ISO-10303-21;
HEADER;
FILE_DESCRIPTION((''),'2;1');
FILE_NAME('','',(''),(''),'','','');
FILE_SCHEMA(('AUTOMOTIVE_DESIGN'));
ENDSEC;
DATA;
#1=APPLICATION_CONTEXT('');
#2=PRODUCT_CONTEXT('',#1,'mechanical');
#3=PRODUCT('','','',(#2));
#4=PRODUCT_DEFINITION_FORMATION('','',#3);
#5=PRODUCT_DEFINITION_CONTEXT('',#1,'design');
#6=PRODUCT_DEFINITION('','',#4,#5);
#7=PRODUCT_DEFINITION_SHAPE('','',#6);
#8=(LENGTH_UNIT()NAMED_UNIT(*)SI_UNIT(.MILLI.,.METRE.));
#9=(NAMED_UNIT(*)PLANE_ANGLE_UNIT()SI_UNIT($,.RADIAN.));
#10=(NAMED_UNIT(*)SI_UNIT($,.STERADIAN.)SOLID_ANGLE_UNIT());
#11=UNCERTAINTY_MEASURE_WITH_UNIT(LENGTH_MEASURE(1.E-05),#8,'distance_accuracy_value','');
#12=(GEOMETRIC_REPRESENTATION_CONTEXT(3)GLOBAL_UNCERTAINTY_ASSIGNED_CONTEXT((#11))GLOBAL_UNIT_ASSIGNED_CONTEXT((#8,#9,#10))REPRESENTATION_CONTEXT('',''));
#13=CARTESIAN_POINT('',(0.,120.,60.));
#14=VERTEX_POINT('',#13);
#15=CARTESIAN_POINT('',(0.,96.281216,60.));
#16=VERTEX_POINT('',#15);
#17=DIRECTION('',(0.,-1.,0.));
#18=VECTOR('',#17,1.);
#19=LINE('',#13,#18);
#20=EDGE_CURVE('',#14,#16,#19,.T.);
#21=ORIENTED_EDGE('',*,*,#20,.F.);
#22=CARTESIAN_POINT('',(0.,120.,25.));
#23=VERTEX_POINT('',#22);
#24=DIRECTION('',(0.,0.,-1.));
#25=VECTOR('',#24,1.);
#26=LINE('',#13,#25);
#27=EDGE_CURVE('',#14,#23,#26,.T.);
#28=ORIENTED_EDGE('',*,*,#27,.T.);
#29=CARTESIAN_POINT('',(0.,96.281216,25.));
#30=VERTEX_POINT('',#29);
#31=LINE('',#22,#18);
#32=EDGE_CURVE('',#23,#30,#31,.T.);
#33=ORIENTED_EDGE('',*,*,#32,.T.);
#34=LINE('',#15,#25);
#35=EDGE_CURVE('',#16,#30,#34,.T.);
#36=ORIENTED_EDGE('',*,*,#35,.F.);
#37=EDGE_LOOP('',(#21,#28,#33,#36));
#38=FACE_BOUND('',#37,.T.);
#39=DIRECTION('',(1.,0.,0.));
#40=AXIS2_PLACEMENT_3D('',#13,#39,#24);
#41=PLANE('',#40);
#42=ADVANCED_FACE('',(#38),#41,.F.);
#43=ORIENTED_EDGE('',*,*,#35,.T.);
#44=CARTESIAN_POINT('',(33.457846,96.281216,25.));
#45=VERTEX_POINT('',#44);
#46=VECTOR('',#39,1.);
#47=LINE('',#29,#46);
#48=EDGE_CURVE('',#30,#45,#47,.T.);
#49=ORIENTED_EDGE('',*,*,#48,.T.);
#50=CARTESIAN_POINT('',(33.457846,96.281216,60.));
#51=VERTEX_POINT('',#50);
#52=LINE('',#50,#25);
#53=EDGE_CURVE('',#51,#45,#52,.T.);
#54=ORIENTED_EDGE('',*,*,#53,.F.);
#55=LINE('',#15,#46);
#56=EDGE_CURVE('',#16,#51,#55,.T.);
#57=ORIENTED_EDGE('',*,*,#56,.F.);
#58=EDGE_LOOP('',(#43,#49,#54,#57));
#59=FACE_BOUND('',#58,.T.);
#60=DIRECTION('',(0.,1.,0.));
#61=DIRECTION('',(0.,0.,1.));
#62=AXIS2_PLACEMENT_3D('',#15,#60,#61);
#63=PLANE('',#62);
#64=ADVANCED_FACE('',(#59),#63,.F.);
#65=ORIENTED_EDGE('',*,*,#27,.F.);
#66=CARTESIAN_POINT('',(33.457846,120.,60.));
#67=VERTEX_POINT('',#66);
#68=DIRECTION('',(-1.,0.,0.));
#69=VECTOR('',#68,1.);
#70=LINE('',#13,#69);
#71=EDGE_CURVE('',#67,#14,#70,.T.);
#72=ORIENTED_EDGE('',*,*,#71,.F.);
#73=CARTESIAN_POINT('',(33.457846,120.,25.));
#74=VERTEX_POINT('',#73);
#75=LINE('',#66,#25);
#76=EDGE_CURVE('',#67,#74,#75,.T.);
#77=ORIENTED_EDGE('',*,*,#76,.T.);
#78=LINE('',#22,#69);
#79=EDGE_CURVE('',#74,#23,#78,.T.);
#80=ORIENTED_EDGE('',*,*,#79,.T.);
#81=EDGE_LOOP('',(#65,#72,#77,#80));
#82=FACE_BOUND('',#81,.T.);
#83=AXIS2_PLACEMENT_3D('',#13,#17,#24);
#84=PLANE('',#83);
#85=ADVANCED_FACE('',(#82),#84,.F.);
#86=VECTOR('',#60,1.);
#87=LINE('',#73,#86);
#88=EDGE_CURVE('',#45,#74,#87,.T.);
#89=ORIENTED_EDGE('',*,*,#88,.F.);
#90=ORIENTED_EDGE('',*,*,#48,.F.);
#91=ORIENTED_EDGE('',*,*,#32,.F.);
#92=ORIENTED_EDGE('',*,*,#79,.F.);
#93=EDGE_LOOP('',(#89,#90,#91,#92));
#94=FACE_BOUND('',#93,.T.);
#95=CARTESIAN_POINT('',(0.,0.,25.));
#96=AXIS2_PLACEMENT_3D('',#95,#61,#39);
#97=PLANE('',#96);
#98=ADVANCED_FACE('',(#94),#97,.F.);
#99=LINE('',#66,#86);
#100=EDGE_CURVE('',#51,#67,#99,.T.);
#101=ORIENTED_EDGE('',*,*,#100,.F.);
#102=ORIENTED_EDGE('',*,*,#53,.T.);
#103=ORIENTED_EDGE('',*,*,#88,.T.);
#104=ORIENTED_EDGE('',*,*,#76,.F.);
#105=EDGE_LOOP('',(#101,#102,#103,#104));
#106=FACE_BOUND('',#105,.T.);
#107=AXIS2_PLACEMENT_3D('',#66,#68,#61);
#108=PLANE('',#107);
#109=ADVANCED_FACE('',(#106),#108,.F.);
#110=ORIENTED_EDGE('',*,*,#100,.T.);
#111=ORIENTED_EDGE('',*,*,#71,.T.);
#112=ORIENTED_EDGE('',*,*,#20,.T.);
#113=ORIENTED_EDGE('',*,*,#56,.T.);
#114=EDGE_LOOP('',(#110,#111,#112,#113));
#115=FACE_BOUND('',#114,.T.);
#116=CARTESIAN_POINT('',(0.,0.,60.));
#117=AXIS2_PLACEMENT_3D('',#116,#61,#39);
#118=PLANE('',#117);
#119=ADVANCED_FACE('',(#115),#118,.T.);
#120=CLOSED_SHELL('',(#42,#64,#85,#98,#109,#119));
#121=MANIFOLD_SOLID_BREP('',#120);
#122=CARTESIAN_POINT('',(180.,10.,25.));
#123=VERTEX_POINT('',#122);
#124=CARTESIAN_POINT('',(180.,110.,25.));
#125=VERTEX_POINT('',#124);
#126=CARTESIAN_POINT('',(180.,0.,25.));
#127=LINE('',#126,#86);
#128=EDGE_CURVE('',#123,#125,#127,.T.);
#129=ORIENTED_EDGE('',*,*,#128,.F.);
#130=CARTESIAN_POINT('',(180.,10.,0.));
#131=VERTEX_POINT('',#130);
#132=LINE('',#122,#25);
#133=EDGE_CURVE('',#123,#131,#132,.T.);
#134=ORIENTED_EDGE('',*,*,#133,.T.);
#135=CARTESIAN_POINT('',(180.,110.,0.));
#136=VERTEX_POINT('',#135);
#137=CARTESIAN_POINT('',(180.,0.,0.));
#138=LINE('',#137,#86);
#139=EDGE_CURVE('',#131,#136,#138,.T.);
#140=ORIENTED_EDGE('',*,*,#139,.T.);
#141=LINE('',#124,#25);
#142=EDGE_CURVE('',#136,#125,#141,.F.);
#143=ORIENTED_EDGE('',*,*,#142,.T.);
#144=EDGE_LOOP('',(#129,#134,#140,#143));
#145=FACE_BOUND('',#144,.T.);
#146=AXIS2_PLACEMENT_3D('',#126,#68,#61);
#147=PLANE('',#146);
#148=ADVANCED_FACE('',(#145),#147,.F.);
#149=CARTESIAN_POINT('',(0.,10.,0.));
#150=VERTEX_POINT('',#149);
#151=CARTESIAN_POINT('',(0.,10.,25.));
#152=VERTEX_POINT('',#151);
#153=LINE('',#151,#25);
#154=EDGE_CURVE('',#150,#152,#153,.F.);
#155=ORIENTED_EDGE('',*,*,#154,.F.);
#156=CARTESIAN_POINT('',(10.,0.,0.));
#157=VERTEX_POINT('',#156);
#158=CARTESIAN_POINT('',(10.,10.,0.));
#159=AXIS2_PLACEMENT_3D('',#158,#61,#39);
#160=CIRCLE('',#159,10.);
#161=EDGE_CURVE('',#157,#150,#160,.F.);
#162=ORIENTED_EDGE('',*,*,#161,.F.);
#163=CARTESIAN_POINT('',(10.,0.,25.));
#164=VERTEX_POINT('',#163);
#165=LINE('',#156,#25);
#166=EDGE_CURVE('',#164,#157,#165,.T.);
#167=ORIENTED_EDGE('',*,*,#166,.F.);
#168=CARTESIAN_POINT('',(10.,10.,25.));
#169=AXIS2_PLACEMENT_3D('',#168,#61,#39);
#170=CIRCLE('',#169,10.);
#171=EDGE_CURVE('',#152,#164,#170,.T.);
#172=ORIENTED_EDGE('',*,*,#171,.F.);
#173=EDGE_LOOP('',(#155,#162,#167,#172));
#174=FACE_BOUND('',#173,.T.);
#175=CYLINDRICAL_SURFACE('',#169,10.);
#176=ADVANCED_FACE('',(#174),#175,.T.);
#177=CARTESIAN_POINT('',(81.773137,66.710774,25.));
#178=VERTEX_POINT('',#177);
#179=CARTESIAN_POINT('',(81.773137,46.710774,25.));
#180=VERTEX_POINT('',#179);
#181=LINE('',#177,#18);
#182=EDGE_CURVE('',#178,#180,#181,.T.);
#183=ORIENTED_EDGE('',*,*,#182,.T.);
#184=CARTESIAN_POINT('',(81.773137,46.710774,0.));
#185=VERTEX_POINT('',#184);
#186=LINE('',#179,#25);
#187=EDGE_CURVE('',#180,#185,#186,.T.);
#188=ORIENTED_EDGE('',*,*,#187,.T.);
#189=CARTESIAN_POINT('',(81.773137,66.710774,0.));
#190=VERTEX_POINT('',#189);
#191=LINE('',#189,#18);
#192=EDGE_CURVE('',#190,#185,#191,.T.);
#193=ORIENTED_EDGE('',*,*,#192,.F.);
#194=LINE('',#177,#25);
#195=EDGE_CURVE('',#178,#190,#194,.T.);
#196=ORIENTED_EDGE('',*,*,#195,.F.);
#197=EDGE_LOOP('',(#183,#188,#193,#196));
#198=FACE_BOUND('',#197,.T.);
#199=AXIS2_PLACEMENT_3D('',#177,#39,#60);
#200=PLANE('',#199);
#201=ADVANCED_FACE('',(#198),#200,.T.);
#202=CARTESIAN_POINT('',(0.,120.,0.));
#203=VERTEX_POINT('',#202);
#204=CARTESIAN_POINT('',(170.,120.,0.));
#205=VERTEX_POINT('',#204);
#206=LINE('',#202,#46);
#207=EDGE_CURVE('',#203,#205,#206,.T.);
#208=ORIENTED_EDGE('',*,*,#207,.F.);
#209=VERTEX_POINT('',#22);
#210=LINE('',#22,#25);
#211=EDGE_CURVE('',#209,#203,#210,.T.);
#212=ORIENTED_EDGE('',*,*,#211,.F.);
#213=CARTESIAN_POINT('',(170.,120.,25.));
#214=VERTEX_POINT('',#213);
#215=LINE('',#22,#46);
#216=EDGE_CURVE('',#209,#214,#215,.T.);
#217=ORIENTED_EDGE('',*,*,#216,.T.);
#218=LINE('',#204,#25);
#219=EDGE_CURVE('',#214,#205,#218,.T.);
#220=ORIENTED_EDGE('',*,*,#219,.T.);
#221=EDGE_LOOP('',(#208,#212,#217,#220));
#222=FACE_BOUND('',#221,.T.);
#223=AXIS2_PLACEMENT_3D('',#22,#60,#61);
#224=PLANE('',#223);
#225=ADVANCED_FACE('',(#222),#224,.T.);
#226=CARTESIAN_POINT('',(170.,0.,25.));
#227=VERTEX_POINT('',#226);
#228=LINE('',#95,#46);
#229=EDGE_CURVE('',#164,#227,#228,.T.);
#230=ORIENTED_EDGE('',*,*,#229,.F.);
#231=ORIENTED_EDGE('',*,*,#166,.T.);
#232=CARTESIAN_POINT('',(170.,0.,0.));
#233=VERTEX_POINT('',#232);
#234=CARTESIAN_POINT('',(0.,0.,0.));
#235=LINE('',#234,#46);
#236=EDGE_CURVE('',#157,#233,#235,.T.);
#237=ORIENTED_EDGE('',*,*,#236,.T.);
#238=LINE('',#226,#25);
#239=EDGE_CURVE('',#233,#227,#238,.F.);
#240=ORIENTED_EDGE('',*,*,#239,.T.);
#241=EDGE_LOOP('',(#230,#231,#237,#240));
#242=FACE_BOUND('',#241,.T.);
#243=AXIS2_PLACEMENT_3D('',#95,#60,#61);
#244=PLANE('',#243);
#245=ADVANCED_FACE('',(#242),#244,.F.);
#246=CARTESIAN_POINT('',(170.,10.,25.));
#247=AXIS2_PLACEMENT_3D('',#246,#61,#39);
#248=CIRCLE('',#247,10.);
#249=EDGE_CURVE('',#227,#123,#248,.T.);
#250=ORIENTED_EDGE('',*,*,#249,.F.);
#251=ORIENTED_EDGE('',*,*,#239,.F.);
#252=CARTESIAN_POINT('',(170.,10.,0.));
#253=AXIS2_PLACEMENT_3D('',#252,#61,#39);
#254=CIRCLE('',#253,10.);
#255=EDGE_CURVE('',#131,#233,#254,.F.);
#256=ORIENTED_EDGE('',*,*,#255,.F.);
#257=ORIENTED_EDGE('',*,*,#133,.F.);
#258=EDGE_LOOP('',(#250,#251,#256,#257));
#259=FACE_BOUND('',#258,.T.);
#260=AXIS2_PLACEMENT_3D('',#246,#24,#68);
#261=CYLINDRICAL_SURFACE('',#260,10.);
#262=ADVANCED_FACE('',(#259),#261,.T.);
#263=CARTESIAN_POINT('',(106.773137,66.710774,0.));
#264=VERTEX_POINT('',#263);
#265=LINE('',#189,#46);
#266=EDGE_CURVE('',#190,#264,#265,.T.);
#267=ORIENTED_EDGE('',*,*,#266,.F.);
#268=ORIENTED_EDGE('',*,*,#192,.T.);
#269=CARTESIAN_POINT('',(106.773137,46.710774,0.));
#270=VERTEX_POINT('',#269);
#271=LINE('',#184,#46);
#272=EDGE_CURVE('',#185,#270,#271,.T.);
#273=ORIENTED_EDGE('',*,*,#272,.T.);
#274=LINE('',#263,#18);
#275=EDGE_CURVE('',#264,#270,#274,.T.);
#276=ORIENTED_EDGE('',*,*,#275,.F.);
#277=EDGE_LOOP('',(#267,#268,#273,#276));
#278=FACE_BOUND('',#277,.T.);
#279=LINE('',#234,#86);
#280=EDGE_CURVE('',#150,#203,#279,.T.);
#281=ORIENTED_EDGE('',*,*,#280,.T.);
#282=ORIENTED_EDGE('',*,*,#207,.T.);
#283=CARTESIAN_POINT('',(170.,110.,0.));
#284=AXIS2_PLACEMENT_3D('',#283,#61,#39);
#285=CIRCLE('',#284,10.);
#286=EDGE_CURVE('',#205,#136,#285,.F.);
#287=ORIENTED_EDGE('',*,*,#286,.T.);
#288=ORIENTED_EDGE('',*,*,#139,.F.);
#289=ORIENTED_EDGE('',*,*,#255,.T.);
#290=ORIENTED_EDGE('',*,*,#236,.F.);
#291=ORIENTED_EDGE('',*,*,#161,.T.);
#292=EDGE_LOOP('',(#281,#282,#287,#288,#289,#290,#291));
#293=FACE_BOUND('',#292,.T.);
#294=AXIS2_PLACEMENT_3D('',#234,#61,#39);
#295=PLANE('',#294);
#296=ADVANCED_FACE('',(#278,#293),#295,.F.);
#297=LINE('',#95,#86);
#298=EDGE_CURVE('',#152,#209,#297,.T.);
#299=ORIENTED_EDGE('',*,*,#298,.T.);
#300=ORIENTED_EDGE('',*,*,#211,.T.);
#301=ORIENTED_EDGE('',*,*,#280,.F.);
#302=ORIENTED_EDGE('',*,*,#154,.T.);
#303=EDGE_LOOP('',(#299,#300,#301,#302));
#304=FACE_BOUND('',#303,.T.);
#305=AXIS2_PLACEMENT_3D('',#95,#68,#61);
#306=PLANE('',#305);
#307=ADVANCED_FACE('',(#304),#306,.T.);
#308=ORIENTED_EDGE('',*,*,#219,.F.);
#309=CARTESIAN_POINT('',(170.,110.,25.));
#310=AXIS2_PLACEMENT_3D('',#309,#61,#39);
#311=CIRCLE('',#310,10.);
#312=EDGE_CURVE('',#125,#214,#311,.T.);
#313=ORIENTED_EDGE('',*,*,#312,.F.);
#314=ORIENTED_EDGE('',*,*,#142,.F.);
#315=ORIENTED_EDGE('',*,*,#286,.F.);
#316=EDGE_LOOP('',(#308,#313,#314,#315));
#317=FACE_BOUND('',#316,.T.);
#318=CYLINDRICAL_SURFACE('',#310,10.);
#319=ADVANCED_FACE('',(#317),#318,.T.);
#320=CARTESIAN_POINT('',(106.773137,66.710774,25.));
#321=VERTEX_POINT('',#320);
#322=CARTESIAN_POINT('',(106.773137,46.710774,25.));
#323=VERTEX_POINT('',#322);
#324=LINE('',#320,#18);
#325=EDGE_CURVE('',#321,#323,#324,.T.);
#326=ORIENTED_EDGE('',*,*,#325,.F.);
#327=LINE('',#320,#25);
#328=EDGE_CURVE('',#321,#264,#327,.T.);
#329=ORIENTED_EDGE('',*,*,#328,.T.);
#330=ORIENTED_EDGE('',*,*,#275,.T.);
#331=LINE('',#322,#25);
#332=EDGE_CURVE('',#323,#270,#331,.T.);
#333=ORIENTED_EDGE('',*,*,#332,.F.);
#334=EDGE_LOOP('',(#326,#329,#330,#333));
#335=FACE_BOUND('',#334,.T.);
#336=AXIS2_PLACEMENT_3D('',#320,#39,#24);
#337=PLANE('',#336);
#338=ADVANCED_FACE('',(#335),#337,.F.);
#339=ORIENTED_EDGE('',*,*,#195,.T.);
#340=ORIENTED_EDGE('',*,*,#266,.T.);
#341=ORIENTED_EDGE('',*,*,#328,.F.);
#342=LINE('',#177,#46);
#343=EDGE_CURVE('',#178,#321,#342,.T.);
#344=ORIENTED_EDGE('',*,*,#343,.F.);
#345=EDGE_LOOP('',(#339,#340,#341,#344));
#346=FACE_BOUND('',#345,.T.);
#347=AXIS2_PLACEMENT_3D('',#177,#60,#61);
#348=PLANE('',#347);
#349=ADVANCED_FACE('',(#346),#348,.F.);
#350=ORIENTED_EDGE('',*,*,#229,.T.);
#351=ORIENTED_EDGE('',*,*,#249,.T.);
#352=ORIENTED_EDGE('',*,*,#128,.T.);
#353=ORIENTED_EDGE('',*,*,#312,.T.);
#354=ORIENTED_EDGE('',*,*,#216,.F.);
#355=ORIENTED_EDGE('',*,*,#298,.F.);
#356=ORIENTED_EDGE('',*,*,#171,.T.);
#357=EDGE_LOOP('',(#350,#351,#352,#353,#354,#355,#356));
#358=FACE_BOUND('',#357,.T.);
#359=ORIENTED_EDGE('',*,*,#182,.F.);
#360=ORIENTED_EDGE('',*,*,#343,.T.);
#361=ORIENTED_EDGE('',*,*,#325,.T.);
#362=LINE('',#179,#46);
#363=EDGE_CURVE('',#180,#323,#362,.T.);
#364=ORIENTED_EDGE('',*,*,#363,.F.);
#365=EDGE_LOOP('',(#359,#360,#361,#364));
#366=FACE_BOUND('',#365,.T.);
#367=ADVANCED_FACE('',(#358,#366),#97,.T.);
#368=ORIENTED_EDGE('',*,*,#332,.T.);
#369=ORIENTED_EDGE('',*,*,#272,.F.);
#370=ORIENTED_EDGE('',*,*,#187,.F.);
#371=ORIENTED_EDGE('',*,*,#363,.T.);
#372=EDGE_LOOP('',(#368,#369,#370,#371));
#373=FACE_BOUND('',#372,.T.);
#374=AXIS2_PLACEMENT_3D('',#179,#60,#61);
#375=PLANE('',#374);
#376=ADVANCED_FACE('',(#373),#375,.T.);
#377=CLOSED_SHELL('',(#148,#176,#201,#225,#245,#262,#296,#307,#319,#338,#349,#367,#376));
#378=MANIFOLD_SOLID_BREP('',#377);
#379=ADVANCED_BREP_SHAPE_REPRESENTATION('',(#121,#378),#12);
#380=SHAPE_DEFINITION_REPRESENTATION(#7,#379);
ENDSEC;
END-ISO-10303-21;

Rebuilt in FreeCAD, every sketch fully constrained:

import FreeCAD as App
import Part
import Sketcher

V = App.Vector


def edges_at(feature, points):
    """Names of the edges that pass closest to the given points."""
    edges = feature.Shape.Edges
    near = lambda p: min(range(len(edges)), key=lambda i: edges[i].distToShape(Part.Vertex(*p))[0])
    return sorted({f"Edge{near(p) + 1}" for p in points})

doc = App.newDocument("Part")
params = doc.addObject("Spreadsheet::Sheet", "Params")
for row, (alias, value) in enumerate([
    ("sketch1_width", "180 mm"),
    ("sketch1_width2", "25 mm"),
    ("sketch1_height", "120 mm"),
    ("sketch1_height2", "20 mm"),
    ("pad1_length", "25 mm"),
    ("fillet_radius", "10 mm"),
    ("pad2_length", "35 mm"),
], start=1):
    params.set(f"A{row}", alias)
    params.set(f"B{row}", "=" + value)
    params.setAlias(f"B{row}", alias)

body = doc.addObject("PartDesign::Body", "Body")

sketch1 = body.newObject("Sketcher::SketchObject", "Sketch")
sketch1.AttachmentSupport = (doc.getObject("XY_Plane"), [""])
sketch1.MapMode = "FlatFace"
sketch1.addGeometry([
    Part.LineSegment(V(0, 120, 0), V(0, 0, 0)),
    Part.LineSegment(V(0, 0, 0), V(180, 0, 0)),
    Part.LineSegment(V(180, 0, 0), V(180, 120, 0)),
    Part.LineSegment(V(180, 120, 0), V(0, 120, 0)),
    Part.LineSegment(V(106.773137, 46.710774, 0), V(81.773137, 46.710774, 0)),
    Part.LineSegment(V(81.773137, 46.710774, 0), V(81.773137, 66.710774, 0)),
    Part.LineSegment(V(81.773137, 66.710774, 0), V(106.773137, 66.710774, 0)),
    Part.LineSegment(V(106.773137, 66.710774, 0), V(106.773137, 46.710774, 0)),
], False)
sketch1.addConstraint([
    Sketcher.Constraint("Coincident", 0, 2, 1, 1),
    Sketcher.Constraint("Coincident", 1, 2, 2, 1),
    Sketcher.Constraint("Coincident", 2, 2, 3, 1),
    Sketcher.Constraint("Coincident", 3, 2, 0, 1),
    Sketcher.Constraint("Coincident", 4, 2, 5, 1),
    Sketcher.Constraint("Coincident", 5, 2, 6, 1),
    Sketcher.Constraint("Coincident", 6, 2, 7, 1),
    Sketcher.Constraint("Coincident", 7, 2, 4, 1),
    Sketcher.Constraint("Vertical", 0),
    Sketcher.Constraint("Horizontal", 1),
    Sketcher.Constraint("Vertical", 2),
    Sketcher.Constraint("Horizontal", 3),
    Sketcher.Constraint("Horizontal", 4),
    Sketcher.Constraint("Vertical", 5),
    Sketcher.Constraint("Horizontal", 6),
    Sketcher.Constraint("Vertical", 7),
    Sketcher.Constraint("Coincident", 0, 2, -1, 1),
    Sketcher.Constraint("DistanceX", 1, 1, 1, 2, 180.0),
    Sketcher.Constraint("DistanceX", 4, 2, 4, 1, 25.0),
    Sketcher.Constraint("DistanceY", 0, 2, 0, 1, 120.0),
    Sketcher.Constraint("DistanceY", 5, 1, 5, 2, 20.0),
    Sketcher.Constraint("DistanceX", -1, 1, 4, 2, 81.773137),
    Sketcher.Constraint("DistanceY", -1, 1, 4, 2, 46.710774),
])
sketch1.setExpression("Constraints[17]", "Params.sketch1_width")
sketch1.setExpression("Constraints[18]", "Params.sketch1_width2")
sketch1.setExpression("Constraints[19]", "Params.sketch1_height")
sketch1.setExpression("Constraints[20]", "Params.sketch1_height2")
pad1 = body.newObject("PartDesign::Pad", "Pad")
pad1.Profile = sketch1
pad1.setExpression("Length", "Params.pad1_length")
doc.recompute()

fillet = body.newObject("PartDesign::Fillet", "Fillet")
fillet.Base = (pad1, edges_at(pad1, [(0, 0, 12.5), (180, 0, 12.5), (180, 120, 12.5)]))
fillet.setExpression("Radius", "Params.fillet_radius")
body2 = doc.addObject("PartDesign::Body", "Body001")

sketch2 = body2.newObject("Sketcher::SketchObject", "Sketch001")
sketch2.AttachmentSupport = (doc.getObject("XY_Plane001"), [""])
sketch2.MapMode = "FlatFace"
sketch2.AttachmentOffset = App.Placement(V(0, 0, 25), App.Rotation())
sketch2.addGeometry([
    Part.LineSegment(V(0, 120, 0), V(0, 96.281216, 0)),
    Part.LineSegment(V(0, 96.281216, 0), V(33.457846, 96.281216, 0)),
    Part.LineSegment(V(33.457846, 96.281216, 0), V(33.457846, 120, 0)),
    Part.LineSegment(V(33.457846, 120, 0), V(0, 120, 0)),
], False)
sketch2.addConstraint([
    Sketcher.Constraint("Coincident", 0, 2, 1, 1),
    Sketcher.Constraint("Coincident", 1, 2, 2, 1),
    Sketcher.Constraint("Coincident", 2, 2, 3, 1),
    Sketcher.Constraint("Coincident", 3, 2, 0, 1),
    Sketcher.Constraint("Vertical", 0),
    Sketcher.Constraint("Horizontal", 1),
    Sketcher.Constraint("Vertical", 2),
    Sketcher.Constraint("Horizontal", 3),
    Sketcher.Constraint("PointOnObject", 0, 2, -2),
    Sketcher.Constraint("DistanceY", -1, 1, 2, 2, 120.0),
    Sketcher.Constraint("DistanceX", 1, 1, 1, 2, 33.457846),
    Sketcher.Constraint("DistanceY", 0, 2, 0, 1, 23.718784),
])
pad2 = body2.newObject("PartDesign::Pad", "Pad001")
pad2.Profile = sketch2
pad2.setExpression("Length", "Params.pad2_length")

doc.recompute()
